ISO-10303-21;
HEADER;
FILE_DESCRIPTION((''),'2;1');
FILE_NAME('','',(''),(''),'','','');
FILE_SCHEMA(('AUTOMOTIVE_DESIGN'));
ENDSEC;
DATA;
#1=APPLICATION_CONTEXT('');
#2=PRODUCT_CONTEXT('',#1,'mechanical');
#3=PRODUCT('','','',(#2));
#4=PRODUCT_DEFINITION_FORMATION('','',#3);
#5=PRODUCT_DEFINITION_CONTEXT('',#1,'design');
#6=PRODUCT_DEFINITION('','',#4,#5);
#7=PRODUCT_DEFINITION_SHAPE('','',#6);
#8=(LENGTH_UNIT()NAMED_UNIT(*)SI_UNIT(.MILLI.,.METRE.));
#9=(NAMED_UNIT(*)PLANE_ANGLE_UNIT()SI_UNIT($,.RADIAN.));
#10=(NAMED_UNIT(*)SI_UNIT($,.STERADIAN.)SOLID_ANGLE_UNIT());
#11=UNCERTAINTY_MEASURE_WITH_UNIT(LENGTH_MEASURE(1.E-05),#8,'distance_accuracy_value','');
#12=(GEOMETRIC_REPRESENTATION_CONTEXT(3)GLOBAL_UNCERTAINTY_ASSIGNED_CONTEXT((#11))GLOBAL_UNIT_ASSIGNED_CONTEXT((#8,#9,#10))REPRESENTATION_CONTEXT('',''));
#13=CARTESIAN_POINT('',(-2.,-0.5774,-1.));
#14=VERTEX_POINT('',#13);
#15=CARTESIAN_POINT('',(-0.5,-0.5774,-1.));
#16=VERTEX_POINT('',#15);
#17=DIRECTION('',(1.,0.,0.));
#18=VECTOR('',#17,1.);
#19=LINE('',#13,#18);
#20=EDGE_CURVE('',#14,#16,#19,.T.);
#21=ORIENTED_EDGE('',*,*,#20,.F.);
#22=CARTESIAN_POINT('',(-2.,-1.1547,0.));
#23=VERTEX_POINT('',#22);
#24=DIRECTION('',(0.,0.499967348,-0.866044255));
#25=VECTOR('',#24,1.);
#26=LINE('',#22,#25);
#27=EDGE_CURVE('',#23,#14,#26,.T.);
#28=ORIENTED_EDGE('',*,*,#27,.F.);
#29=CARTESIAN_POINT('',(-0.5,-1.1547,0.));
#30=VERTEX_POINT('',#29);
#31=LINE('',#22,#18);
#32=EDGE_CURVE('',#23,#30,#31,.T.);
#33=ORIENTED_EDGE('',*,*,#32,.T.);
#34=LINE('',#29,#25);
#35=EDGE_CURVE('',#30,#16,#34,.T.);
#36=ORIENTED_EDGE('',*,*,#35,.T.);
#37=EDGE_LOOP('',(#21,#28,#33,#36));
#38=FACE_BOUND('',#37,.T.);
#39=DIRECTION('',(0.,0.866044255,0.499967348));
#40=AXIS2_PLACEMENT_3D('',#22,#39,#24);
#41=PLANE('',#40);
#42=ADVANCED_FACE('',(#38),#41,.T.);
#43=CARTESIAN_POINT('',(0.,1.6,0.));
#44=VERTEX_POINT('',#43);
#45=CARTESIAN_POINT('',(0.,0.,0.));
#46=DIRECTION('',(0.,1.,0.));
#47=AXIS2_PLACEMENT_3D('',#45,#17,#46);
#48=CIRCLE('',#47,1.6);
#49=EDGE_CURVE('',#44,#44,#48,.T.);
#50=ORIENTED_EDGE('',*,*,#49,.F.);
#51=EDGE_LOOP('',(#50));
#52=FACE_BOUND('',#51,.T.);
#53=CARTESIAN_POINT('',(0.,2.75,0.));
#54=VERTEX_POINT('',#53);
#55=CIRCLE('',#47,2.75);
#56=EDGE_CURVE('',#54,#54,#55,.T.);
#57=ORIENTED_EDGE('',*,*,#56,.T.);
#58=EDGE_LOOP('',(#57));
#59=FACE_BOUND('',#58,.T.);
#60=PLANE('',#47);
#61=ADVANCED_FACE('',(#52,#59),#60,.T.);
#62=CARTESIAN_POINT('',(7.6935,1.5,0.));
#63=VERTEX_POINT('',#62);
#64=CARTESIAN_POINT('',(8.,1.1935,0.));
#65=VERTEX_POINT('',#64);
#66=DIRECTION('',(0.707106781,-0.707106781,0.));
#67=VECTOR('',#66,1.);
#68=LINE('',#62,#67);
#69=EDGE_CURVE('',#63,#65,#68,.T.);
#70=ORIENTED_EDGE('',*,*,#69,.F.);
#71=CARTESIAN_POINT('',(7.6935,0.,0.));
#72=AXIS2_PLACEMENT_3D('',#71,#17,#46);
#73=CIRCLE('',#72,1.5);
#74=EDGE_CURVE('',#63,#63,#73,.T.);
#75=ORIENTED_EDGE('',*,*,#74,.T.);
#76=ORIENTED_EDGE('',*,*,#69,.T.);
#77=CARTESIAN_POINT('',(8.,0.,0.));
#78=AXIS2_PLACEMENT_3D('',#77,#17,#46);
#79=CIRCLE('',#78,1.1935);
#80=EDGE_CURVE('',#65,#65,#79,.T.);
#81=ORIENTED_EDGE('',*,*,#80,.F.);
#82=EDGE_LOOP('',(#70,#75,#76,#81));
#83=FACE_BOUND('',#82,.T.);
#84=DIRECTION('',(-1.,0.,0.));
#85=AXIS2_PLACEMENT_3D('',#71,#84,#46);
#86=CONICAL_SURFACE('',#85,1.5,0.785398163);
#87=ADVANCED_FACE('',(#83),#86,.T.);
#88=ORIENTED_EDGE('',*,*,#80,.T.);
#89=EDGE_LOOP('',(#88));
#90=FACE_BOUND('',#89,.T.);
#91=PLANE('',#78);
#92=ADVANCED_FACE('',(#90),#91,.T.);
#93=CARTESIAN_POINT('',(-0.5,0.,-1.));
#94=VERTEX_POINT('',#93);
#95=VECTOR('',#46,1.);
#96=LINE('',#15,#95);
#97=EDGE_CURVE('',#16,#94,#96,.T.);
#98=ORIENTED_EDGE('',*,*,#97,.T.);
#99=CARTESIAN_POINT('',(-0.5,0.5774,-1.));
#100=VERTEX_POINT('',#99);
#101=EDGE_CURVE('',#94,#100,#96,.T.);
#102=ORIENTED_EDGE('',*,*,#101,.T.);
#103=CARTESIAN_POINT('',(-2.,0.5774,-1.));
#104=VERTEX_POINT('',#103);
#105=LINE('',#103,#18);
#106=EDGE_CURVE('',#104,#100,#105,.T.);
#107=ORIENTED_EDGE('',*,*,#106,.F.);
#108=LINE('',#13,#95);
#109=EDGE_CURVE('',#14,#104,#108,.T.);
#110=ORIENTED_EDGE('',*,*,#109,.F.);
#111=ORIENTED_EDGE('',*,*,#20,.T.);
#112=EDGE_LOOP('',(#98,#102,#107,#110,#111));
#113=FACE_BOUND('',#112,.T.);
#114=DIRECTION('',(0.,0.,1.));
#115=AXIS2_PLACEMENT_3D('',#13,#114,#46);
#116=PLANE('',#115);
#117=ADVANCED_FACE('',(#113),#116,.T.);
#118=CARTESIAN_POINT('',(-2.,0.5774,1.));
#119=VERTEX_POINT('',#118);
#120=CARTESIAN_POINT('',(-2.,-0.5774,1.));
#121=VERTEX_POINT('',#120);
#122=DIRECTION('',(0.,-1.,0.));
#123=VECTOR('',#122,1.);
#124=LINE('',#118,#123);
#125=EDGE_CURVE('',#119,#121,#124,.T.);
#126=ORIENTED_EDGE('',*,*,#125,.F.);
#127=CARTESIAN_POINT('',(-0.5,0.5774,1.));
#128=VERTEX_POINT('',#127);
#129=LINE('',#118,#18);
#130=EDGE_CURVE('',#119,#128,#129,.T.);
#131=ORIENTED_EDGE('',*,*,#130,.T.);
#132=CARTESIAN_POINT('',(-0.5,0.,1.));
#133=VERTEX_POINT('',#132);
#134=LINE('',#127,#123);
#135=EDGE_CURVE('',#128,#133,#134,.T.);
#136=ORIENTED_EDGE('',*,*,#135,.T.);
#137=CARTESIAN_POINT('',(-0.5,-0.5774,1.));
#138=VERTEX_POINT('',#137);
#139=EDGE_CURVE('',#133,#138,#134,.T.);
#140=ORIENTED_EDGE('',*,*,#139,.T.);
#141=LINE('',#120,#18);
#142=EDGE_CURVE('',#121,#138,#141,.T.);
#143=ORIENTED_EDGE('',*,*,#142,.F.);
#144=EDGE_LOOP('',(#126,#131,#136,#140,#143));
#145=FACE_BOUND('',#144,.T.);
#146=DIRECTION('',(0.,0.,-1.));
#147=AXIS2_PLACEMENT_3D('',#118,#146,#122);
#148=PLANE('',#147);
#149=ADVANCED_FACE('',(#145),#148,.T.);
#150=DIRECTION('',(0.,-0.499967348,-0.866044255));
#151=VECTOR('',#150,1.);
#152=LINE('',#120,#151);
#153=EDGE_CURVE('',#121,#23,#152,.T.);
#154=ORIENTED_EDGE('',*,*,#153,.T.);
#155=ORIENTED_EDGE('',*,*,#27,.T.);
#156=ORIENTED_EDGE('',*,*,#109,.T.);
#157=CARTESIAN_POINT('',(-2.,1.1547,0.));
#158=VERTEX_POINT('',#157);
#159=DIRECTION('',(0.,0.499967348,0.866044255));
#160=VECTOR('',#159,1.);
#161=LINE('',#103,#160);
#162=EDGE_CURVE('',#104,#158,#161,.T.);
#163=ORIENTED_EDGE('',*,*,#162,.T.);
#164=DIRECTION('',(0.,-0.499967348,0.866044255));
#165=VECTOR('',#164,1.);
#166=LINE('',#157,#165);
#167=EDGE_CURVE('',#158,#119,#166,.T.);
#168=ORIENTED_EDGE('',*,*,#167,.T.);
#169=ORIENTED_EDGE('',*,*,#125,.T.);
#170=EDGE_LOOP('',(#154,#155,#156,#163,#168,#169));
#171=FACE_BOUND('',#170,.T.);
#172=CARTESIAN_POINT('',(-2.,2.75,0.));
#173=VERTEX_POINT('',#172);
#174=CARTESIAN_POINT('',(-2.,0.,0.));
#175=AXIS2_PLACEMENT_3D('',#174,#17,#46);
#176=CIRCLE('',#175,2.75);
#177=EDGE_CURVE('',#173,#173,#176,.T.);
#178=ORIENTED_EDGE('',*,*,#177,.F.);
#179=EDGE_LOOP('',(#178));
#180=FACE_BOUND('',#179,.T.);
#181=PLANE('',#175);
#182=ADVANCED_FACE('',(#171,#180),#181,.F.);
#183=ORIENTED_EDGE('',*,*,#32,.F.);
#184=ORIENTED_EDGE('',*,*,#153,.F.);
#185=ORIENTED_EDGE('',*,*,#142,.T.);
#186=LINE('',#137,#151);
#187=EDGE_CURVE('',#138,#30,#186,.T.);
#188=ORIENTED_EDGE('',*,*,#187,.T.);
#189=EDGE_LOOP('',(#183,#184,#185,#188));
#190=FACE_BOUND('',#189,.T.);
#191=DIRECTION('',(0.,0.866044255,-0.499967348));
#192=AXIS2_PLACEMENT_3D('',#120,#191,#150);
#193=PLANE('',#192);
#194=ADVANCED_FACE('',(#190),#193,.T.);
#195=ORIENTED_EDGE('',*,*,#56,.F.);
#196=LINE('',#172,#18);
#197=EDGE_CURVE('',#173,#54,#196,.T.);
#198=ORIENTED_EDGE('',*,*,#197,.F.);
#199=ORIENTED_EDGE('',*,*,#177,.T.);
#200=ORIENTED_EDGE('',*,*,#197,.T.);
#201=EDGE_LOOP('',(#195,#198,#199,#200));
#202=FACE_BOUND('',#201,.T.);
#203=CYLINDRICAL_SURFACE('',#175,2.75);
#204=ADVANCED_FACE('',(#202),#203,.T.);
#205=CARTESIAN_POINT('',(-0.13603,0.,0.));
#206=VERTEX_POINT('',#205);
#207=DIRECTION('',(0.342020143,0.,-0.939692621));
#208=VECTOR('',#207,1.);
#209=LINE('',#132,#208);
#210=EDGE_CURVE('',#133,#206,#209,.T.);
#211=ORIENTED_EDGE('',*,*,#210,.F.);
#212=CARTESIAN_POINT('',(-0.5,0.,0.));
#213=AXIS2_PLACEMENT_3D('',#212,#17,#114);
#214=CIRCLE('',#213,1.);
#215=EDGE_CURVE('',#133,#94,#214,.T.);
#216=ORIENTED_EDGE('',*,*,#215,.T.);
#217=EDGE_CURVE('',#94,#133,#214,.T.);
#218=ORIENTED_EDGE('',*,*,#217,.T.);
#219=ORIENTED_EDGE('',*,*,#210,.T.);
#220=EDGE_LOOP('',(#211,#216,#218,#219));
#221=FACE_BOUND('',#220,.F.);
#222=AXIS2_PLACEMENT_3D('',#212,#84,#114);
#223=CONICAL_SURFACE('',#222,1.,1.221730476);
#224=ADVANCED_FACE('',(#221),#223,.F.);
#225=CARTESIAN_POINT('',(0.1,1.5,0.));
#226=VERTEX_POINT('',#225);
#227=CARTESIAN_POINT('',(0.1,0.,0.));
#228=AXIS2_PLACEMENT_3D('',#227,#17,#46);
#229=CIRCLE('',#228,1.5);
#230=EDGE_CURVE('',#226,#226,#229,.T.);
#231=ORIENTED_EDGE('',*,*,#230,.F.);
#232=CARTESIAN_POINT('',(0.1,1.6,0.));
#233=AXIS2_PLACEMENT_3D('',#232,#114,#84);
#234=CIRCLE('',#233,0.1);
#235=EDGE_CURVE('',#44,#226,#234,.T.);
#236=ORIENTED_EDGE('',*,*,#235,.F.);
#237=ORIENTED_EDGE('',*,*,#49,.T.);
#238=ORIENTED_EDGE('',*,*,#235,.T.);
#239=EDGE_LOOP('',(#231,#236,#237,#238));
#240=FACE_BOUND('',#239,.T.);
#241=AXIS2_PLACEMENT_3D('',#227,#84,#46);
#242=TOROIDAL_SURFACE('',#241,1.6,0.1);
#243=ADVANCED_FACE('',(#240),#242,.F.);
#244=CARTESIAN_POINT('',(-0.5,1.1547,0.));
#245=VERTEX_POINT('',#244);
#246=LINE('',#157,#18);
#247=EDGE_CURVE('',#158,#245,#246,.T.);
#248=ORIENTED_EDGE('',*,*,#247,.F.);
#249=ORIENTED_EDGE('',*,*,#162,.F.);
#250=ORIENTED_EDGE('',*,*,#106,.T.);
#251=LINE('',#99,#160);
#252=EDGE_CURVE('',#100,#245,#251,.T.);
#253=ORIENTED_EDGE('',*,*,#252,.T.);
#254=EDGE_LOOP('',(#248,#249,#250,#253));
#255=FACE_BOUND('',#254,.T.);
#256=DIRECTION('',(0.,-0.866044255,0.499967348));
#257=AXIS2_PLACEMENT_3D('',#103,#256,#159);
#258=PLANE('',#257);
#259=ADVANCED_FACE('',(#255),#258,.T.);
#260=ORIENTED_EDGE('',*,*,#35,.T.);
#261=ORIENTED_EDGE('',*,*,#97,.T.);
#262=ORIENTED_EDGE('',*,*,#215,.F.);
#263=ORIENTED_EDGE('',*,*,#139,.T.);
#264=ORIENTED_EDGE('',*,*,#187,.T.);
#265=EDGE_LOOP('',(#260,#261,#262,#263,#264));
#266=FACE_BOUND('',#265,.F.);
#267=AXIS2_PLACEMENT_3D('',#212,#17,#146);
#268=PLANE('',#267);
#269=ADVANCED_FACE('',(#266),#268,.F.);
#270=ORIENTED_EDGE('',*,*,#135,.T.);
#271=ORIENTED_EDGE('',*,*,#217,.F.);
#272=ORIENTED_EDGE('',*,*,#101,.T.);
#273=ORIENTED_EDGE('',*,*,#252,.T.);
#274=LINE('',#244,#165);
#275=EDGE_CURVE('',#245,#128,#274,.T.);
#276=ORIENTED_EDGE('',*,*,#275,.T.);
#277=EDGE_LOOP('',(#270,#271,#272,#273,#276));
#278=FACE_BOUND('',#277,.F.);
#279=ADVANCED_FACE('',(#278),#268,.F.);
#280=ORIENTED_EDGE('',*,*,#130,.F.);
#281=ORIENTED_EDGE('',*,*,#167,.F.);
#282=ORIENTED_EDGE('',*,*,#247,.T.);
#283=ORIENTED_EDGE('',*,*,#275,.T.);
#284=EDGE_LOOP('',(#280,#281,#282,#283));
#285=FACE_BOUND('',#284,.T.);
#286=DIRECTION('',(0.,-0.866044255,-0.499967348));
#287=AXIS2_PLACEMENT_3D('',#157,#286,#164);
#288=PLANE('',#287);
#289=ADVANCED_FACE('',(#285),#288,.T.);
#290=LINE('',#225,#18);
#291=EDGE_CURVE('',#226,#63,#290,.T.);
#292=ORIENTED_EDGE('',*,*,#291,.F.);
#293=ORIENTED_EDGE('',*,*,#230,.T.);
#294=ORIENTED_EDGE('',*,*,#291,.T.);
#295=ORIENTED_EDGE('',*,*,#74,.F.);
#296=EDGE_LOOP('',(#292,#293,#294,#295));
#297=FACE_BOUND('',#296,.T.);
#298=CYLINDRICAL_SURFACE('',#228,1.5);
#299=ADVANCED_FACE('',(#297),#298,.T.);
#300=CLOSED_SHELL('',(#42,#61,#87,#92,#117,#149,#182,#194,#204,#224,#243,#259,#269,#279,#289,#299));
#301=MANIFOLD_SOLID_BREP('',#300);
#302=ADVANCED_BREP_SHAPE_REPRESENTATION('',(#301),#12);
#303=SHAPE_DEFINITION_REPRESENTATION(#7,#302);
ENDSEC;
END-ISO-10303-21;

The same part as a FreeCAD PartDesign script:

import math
import FreeCAD as App
import Part
import Sketcher
Q = App.Units.Quantity

doc = App.newDocument("Part")
params = doc.addObject("Spreadsheet::Sheet", "Params")
for row, (alias, value) in enumerate([
    ("sketch1_radius", "0.1 mm"),
    ("sketch1_width", "10 mm"),
    ("sketch1_width2", "2 mm"),
    ("sketch1_height", "1.15 mm"),
    ("sketch1_height2", "2.75 mm"),
    ("revolution_angle", "360 deg"),
    ("sketch2_diameter", "2 mm"),
    ("hole_diameter", "2 mm"),
    ("hole_depth", "1.5 mm"),
    ("pocket1_length", "1.5 mm"),
], start=1):
    params.set(f"A{row}", alias)
    params.set(f"B{row}", "=" + value)
    params.setAlias(f"B{row}", alias)

body = doc.addObject("PartDesign::Body", "Body")

# Sketch on XY plane
sketch1 = doc.addObject("Sketcher::SketchObject", "Sketch")
body.addObject(sketch1)
sketch1.AttachmentSupport = (doc.XY_Plane, [""])
sketch1.MapMode = "FlatFace"
sketch1.addGeometry([
    Part.LineSegment(App.Vector(-2, 0, 0), App.Vector(8, 0, 0)),  # 0
    Part.LineSegment(App.Vector(8, 0, 0), App.Vector(8, 1.19, 0)),  # 1
    Part.LineSegment(App.Vector(8, 1.19, 0), App.Vector(7.69, 1.5, 0)),  # 2
    Part.LineSegment(App.Vector(7.69, 1.5, 0), App.Vector(0.1, 1.5, 0)),  # 3
    Part.ArcOfCircle(Part.Circle(App.Vector(0.1, 1.6, 0), App.Vector(0, 0, 1), 0.1), math.radians(180), math.radians(270)),  # 4
    Part.LineSegment(App.Vector(0, 1.6, 0), App.Vector(0, 2.75, 0)),  # 5
    Part.LineSegment(App.Vector(0, 2.75, 0), App.Vector(-2, 2.75, 0)),  # 6
    Part.LineSegment(App.Vector(-2, 2.75, 0), App.Vector(-2, 0, 0)),  # 7
], False)
sketch1.addConstraint([
    Sketcher.Constraint("Coincident", 0, 2, 1, 1),
    Sketcher.Constraint("Coincident", 1, 2, 2, 1),
    Sketcher.Constraint("Coincident", 2, 2, 3, 1),
    Sketcher.Constraint("Tangent", 3, 2, 4, 2),
    Sketcher.Constraint("Tangent", 4, 1, 5, 1),
    Sketcher.Constraint("Coincident", 5, 2, 6, 1),
    Sketcher.Constraint("Coincident", 6, 2, 7, 1),
    Sketcher.Constraint("Coincident", 7, 2, 0, 1),
    Sketcher.Constraint("Horizontal", 0),
    Sketcher.Constraint("Vertical", 1),
    Sketcher.Constraint("Horizontal", 3),
    Sketcher.Constraint("Vertical", 5),
    Sketcher.Constraint("Horizontal", 6),
    Sketcher.Constraint("Vertical", 7),
    Sketcher.Constraint("PointOnObject", 0, 2, -1),
    Sketcher.Constraint("PointOnObject", 4, 1, -2),
    Sketcher.Constraint("Radius", 4, 0.1),
    Sketcher.Constraint("DistanceX", 0, 1, 0, 2, 10.0),
    Sketcher.Constraint("DistanceX", 6, 2, 6, 1, 2.0),
    Sketcher.Constraint("Angle", 2, Q("135 deg")),
    Sketcher.Constraint("DistanceY", 5, 1, 5, 2, 1.15),
    Sketcher.Constraint("DistanceY", 7, 2, 7, 1, 2.75),
    Sketcher.Constraint("DistanceX", 3, 2, 3, 1, 7.5935),
])
sketch1.setExpression("Constraints[16]", "Params.sketch1_radius")
sketch1.setExpression("Constraints[17]", "Params.sketch1_width")
sketch1.setExpression("Constraints[18]", "Params.sketch1_width2")
sketch1.setExpression("Constraints[20]", "Params.sketch1_height")
sketch1.setExpression("Constraints[21]", "Params.sketch1_height2")
revolution = doc.addObject("PartDesign::Revolution", "Revolution")
body.addObject(revolution)
revolution.Profile = sketch1
revolution.ReferenceAxis = (sketch1, ["H_Axis"])
revolution.setExpression("Angle", "Params.revolution_angle")

# Sketch on YZ plane
sketch2 = doc.addObject("Sketcher::SketchObject", "Sketch001")
body.addObject(sketch2)
sketch2.AttachmentSupport = (doc.YZ_Plane, [""])
sketch2.MapMode = "FlatFace"
sketch2.AttachmentOffset = App.Placement(App.Vector(0, 0, -2), App.Rotation())
sketch2.addGeometry(Part.Circle(App.Vector(0, 0, 0), App.Vector(0, 0, 1), 1), False)
sketch2.addConstraint([
    Sketcher.Constraint("Coincident", 0, 3, -1, 1),
    Sketcher.Constraint("Diameter", 0, 2.0),
])
sketch2.setExpression("Constraints[1]", "Params.sketch2_diameter")
doc.recompute()
hole = doc.addObject("PartDesign::Hole", "Hole")
body.addObject(hole)
hole.Profile = sketch2
hole.ThreadType = "None"
hole.setExpression("Diameter", "Params.hole_diameter")
hole.DepthType = "Dimension"
hole.setExpression("Depth", "Params.hole_depth")
hole.DrillPoint = "Angled"
hole.DrillPointAngle = 140
hole.Reversed = True

# Sketch on YZ plane
sketch3 = doc.addObject("Sketcher::SketchObject", "Sketch002")
body.addObject(sketch3)
sketch3.AttachmentSupport = (doc.YZ_Plane, [""])
sketch3.MapMode = "FlatFace"
sketch3.AttachmentOffset = App.Placement(App.Vector(0, 0, -2), App.Rotation())
sketch3.addGeometry([
    Part.LineSegment(App.Vector(1.2, 0, 0), App.Vector(0.6, 1, 0)),  # 0
    Part.LineSegment(App.Vector(0.6, 1, 0), App.Vector(-0.6, 1, 0)),  # 1
    Part.LineSegment(App.Vector(-0.6, 1, 0), App.Vector(-1.2, 0, 0)),  # 2
    Part.LineSegment(App.Vector(-1.2, 0, 0), App.Vector(-0.6, -1, 0)),  # 3
    Part.LineSegment(App.Vector(-0.6, -1, 0), App.Vector(0.6, -1, 0)),  # 4
    Part.LineSegment(App.Vector(0.6, -1, 0), App.Vector(1.2, 0, 0)),  # 5
], False)
sketch3.addConstraint([
    Sketcher.Constraint("Coincident", 0, 2, 1, 1),
    Sketcher.Constraint("Coincident", 1, 2, 2, 1),
    Sketcher.Constraint("Coincident", 2, 2, 3, 1),
    Sketcher.Constraint("Coincident", 3, 2, 4, 1),
    Sketcher.Constraint("Coincident", 4, 2, 5, 1),
    Sketcher.Constraint("Coincident", 5, 2, 0, 1),
    Sketcher.Constraint("Horizontal", 1),
    Sketcher.Constraint("Horizontal", 4),
    Sketcher.Constraint("Symmetric", 0, 2, 3, 2, -1, 1),
    Sketcher.Constraint("Symmetric", 2, 2, 5, 2, -1, 1),
    Sketcher.Constraint("PointOnObject", 2, 2, -1),
    Sketcher.Constraint("Parallel", 2, 5),
    Sketcher.Constraint("Vertical", 1, 2, 3, 2),
    Sketcher.Constraint("DistanceY", -1, 1, 0, 2, 1.0),
    Sketcher.Constraint("DistanceX", 1, 2, 1, 1, 1.1548),
    Sketcher.Constraint("DistanceX", 2, 2, 0, 2, 1.732),
])
pocket1 = doc.addObject("PartDesign::Pocket", "Pocket")
body.addObject(pocket1)
pocket1.Profile = sketch3
pocket1.setExpression("Length", "Params.pocket1_length")
pocket1.Reversed = True

doc.recompute()
